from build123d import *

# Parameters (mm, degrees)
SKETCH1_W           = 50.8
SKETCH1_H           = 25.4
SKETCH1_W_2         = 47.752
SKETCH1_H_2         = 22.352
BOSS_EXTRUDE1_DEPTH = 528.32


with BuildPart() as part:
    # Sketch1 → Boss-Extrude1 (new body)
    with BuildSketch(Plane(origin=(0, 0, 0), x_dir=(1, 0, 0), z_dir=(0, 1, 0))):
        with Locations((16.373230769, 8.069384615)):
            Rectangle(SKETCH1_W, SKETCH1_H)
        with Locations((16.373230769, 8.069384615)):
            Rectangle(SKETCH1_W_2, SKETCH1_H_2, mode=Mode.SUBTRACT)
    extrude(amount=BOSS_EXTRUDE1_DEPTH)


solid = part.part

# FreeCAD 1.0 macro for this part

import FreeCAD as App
import Part
import Sketcher
Q = App.Units.Quantity

doc = App.newDocument("Part")
body = doc.addObject("PartDesign::Body", "Body")

sketch1 = doc.addObject("Sketcher::SketchObject", "Sketch")
body.addObject(sketch1)
sketch1.AttachmentSupport = (doc.XZ_Plane, [""])
sketch1.MapMode = "FlatFace"
sketch1.addGeometry(Part.LineSegment(App.Vector(-9, -21, 0), App.Vector(-9, 5, 0)), False)
sketch1.addGeometry(Part.LineSegment(App.Vector(-9, 5, 0), App.Vector(42, 5, 0)), False)
sketch1.addGeometry(Part.LineSegment(App.Vector(42, 5, 0), App.Vector(42, -21, 0)), False)
sketch1.addGeometry(Part.LineSegment(App.Vector(42, -21, 0), App.Vector(-9, -21, 0)), False)
sketch1.addGeometry(Part.LineSegment(App.Vector(40, 3, 0), App.Vector(-8, 3, 0)), False)
sketch1.addGeometry(Part.LineSegment(App.Vector(-8, 3, 0), App.Vector(-8, -19, 0)), False)
sketch1.addGeometry(Part.LineSegment(App.Vector(-8, -19, 0), App.Vector(40, -19, 0)), False)
sketch1.addGeometry(Part.LineSegment(App.Vector(40, -19, 0), App.Vector(40, 3, 0)), False)
sketch1.addConstraint(Sketcher.Constraint("Coincident", 0, 2, 1, 1))
sketch1.addConstraint(Sketcher.Constraint("Coincident", 1, 2, 2, 1))
sketch1.addConstraint(Sketcher.Constraint("Coincident", 2, 2, 3, 1))
sketch1.addConstraint(Sketcher.Constraint("Coincident", 3, 2, 0, 1))
sketch1.addConstraint(Sketcher.Constraint("Coincident", 4, 2, 5, 1))
sketch1.addConstraint(Sketcher.Constraint("Coincident", 5, 2, 6, 1))
sketch1.addConstraint(Sketcher.Constraint("Coincident", 6, 2, 7, 1))
sketch1.addConstraint(Sketcher.Constraint("Coincident", 7, 2, 4, 1))
sketch1.addConstraint(Sketcher.Constraint("Vertical", 0))
sketch1.addConstraint(Sketcher.Constraint("Horizontal", 1))
sketch1.addConstraint(Sketcher.Constraint("Vertical", 2))
sketch1.addConstraint(Sketcher.Constraint("Horizontal", 3))
sketch1.addConstraint(Sketcher.Constraint("Horizontal", 4))
sketch1.addConstraint(Sketcher.Constraint("Vertical", 5))
sketch1.addConstraint(Sketcher.Constraint("Horizontal", 6))
sketch1.addConstraint(Sketcher.Constraint("Vertical", 7))
sketch1.addConstraint(Sketcher.Constraint("DistanceX", 1, 1, 1, 2, Q("2 in")))
sketch1.addConstraint(Sketcher.Constraint("DistanceY", 0, 1, 0, 2, Q("1 in")))
sketch1.addConstraint(Sketcher.Constraint("DistanceX", 4, 2, 4, 1, Q("1.88 in")))
sketch1.addConstraint(Sketcher.Constraint("DistanceY", 5, 2, 5, 1, Q("0.88 in")))
sketch1.addConstraint(Sketcher.Constraint("DistanceX", 0, 2, 4, 2, Q("0.06 in")))
sketch1.addConstraint(Sketcher.Constraint("DistanceY", 4, 2, 0, 2, Q("0.06 in")))
sketch1.addConstraint(Sketcher.Constraint("DistanceX", 0, 2, -1, 1, Q("9.026769 mm")))
sketch1.addConstraint(Sketcher.Constraint("DistanceY", -1, 1, 0, 2, Q("4.630615 mm")))
pad1 = doc.addObject("PartDesign::Pad", "Pad")
body.addObject(pad1)
pad1.Profile = sketch1
pad1.Length = Q("20.8 in")
pad1.Reversed = True

doc.recompute()
